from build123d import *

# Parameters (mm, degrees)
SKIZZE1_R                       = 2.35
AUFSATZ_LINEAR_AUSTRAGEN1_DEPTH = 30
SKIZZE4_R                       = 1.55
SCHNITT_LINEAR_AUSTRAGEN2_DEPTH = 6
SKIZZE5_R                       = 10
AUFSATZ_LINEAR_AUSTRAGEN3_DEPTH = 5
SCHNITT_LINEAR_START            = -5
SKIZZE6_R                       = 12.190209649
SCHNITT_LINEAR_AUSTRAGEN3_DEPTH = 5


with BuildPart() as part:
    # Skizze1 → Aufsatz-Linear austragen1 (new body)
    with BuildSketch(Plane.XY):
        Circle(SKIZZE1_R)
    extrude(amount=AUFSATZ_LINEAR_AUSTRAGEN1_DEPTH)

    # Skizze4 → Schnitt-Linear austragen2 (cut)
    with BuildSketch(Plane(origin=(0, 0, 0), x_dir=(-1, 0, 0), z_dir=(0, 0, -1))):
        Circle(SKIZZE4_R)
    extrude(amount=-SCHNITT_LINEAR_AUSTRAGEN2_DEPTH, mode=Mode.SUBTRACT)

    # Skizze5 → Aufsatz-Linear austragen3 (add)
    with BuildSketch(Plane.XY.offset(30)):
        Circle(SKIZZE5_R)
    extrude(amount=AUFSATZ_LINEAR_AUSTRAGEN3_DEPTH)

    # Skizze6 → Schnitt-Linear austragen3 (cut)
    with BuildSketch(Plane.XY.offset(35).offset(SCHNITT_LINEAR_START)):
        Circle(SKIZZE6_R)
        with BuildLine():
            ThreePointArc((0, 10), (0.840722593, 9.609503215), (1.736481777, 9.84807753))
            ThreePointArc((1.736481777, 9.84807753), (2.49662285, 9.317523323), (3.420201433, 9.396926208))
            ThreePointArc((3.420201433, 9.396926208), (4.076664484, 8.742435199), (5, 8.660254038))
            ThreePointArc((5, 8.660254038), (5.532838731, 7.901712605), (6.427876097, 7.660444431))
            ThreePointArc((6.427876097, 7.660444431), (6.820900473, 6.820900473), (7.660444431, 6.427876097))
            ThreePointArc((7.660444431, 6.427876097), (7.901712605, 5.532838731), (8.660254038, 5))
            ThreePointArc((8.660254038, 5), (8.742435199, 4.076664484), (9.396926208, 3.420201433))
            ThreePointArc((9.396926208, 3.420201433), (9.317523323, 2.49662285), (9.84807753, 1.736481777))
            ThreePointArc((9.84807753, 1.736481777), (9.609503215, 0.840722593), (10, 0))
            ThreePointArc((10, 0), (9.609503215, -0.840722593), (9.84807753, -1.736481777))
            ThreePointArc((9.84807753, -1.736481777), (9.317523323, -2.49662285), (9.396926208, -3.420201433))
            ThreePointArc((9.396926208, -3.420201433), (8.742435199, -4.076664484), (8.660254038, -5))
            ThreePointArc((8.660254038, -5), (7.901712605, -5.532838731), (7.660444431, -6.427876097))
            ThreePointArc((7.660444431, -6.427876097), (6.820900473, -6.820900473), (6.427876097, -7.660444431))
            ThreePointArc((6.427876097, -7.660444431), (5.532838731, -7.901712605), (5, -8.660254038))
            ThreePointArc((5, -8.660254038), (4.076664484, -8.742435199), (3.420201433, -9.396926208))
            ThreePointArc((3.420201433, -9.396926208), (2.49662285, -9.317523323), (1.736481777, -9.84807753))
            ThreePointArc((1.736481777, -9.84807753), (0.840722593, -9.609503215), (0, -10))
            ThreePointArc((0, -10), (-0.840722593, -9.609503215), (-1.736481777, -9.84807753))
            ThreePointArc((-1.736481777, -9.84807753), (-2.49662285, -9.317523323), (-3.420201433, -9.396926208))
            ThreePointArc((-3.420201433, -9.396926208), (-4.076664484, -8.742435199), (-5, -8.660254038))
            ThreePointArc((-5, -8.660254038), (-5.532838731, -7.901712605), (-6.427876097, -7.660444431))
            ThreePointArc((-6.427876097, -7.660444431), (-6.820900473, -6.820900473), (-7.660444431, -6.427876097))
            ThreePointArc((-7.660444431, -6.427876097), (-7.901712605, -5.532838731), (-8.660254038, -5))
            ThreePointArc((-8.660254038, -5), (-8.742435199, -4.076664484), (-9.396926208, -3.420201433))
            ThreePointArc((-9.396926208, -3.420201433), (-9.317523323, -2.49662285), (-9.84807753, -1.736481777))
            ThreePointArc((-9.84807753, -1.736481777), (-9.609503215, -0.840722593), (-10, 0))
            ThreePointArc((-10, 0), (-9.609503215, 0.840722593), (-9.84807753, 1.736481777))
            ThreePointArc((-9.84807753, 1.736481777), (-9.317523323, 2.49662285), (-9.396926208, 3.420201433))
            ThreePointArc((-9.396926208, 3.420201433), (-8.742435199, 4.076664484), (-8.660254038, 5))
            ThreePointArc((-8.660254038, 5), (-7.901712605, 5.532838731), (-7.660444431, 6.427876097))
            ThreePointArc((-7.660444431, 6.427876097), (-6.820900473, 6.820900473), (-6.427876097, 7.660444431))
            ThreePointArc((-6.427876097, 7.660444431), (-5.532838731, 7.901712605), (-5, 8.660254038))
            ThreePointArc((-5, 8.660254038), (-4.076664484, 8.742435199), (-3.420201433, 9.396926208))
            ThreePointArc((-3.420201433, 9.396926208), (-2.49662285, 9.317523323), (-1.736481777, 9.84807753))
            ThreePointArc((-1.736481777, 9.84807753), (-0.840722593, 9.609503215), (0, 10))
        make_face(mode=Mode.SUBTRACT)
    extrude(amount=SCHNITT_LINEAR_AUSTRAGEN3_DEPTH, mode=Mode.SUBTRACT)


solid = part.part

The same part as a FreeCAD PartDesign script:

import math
import FreeCAD as App
import Part
import Sketcher

V = App.Vector

doc = App.newDocument("Part")
body = doc.addObject("PartDesign::Body", "Body")

# Sketch on XY plane
sketch1 = body.newObject("Sketcher::SketchObject", "Sketch")
sketch1.AttachmentSupport = (doc.getObject("XY_Plane"), [""])
sketch1.MapMode = "FlatFace"
sketch1.addGeometry(Part.Circle(V(0, 0, 0), V(0, 0, 1), 2.4), False)
sketch1.addConstraint(Sketcher.Constraint("Coincident", 0, 3, -1, 1))
sketch1.addConstraint(Sketcher.Constraint("Diameter", 0, 4.7))
pad1 = body.newObject("PartDesign::Pad", "Pad")
pad1.Profile = sketch1
pad1.Length = 30

# Sketch on XY plane
sketch2 = body.newObject("Sketcher::SketchObject", "Sketch001")
sketch2.AttachmentSupport = (doc.getObject("XY_Plane"), [""])
sketch2.MapMode = "FlatFace"
sketch2.addGeometry(Part.Circle(V(0, 0, 0), V(0, 0, 1), 1.6), False)
sketch2.addConstraint(Sketcher.Constraint("Coincident", 0, 3, -1, 1))
sketch2.addConstraint(Sketcher.Constraint("Diameter", 0, 3.1))
pocket1 = body.newObject("PartDesign::Pocket", "Pocket")
pocket1.Profile = sketch2
pocket1.Length = 6
pocket1.Reversed = True

# Sketch on XY plane
sketch3 = body.newObject("Sketcher::SketchObject", "Sketch002")
sketch3.AttachmentSupport = (doc.getObject("XY_Plane"), [""])
sketch3.MapMode = "FlatFace"
sketch3.AttachmentOffset = App.Placement(V(0, 0, 30), App.Rotation())
sketch3.addGeometry(Part.Circle(V(0, 0, 0), V(0, 0, 1), 10), False)
sketch3.addConstraint(Sketcher.Constraint("Coincident", 0, 3, -1, 1))
sketch3.addConstraint(Sketcher.Constraint("Diameter", 0, 20.0))
pad2 = body.newObject("PartDesign::Pad", "Pad001")
pad2.Profile = sketch3
pad2.Length = 5

# Sketch on XY plane
sketch4 = body.newObject("Sketcher::SketchObject", "Sketch003")
sketch4.AttachmentSupport = (doc.getObject("XY_Plane"), [""])
sketch4.MapMode = "FlatFace"
sketch4.AttachmentOffset = App.Placement(V(0, 0, 30), App.Rotation())
sketch4.addGeometry(Part.Circle(V(0, 0, 0), V(0, 0, 1), 12.2), False)
sketch4.addGeometry(Part.ArcOfCircle(Part.Circle(V(-1, 11, 0), V(0, 0, 1), 1.4), math.radians(-125), math.radians(-45)), False)
sketch4.addGeometry(Part.ArcOfCircle(Part.Circle(V(1, 11, 0), V(0, 0, 1), 1.4), math.radians(-135), math.radians(-55)), False)
sketch4.addGeometry(Part.ArcOfCircle(Part.Circle(V(2.8, 10.6, 0), V(0, 0, 1), 1.4), math.radians(-145), math.radians(-65)), False)
sketch4.addGeometry(Part.ArcOfCircle(Part.Circle(V(4.7, 10, 0), V(0, 0, 1), 1.4), math.radians(-155), math.radians(-75)), False)
sketch4.addGeometry(Part.ArcOfCircle(Part.Circle(V(6.3, 9, 0), V(0, 0, 1), 1.4), math.radians(-165), math.radians(-85)), False)
sketch4.addGeometry(Part.ArcOfCircle(Part.Circle(V(7.8, 7.8, 0), V(0, 0, 1), 1.4), math.radians(-175), math.radians(-95)), False)
sketch4.addGeometry(Part.ArcOfCircle(Part.Circle(V(9, 6.3, 0), V(0, 0, 1), 1.4), math.radians(175), math.radians(255)), False)
sketch4.addGeometry(Part.ArcOfCircle(Part.Circle(V(10, 4.7, 0), V(0, 0, 1), 1.4), math.radians(165), math.radians(245)), False)
sketch4.addGeometry(Part.ArcOfCircle(Part.Circle(V(10.6, 2.8, 0), V(0, 0, 1), 1.4), math.radians(155), math.radians(235)), False)
sketch4.addGeometry(Part.ArcOfCircle(Part.Circle(V(11, 1, 0), V(0, 0, 1), 1.4), math.radians(145), math.radians(225)), False)
sketch4.addGeometry(Part.ArcOfCircle(Part.Circle(V(11, -1, 0), V(0, 0, 1), 1.4), math.radians(135), math.radians(215)), False)
sketch4.addGeometry(Part.ArcOfCircle(Part.Circle(V(10.6, -2.8, 0), V(0, 0, 1), 1.4), math.radians(125), math.radians(205)), False)
sketch4.addGeometry(Part.ArcOfCircle(Part.Circle(V(10, -4.7, 0), V(0, 0, 1), 1.4), math.radians(115), math.radians(195)), False)
sketch4.addGeometry(Part.ArcOfCircle(Part.Circle(V(9, -6.3, 0), V(0, 0, 1), 1.4), math.radians(105), math.radians(185)), False)
sketch4.addGeometry(Part.ArcOfCircle(Part.Circle(V(7.8, -7.8, 0), V(0, 0, 1), 1.4), math.radians(95), math.radians(175)), False)
sketch4.addGeometry(Part.ArcOfCircle(Part.Circle(V(6.3, -9, 0), V(0, 0, 1), 1.4), math.radians(85), math.radians(165)), False)
sketch4.addGeometry(Part.ArcOfCircle(Part.Circle(V(4.7, -10, 0), V(0, 0, 1), 1.4), math.radians(75), math.radians(155)), False)
sketch4.addGeometry(Part.ArcOfCircle(Part.Circle(V(2.8, -10.6, 0), V(0, 0, 1), 1.4), math.radians(65), math.radians(145)), False)
sketch4.addGeometry(Part.ArcOfCircle(Part.Circle(V(1, -11, 0), V(0, 0, 1), 1.4), math.radians(55), math.radians(135)), False)
sketch4.addGeometry(Part.ArcOfCircle(Part.Circle(V(-1, -11, 0), V(0, 0, 1), 1.4), math.radians(45), math.radians(125)), False)
sketch4.addGeometry(Part.ArcOfCircle(Part.Circle(V(-2.8, -10.6, 0), V(0, 0, 1), 1.4), math.radians(35), math.radians(115)), False)
sketch4.addGeometry(Part.ArcOfCircle(Part.Circle(V(-4.7, -10, 0), V(0, 0, 1), 1.4), math.radians(25), math.radians(105)), False)
sketch4.addGeometry(Part.ArcOfCircle(Part.Circle(V(-6.3, -9, 0), V(0, 0, 1), 1.4), math.radians(15), math.radians(95)), False)
sketch4.addGeometry(Part.ArcOfCircle(Part.Circle(V(-7.8, -7.8, 0), V(0, 0, 1), 1.4), math.radians(5), math.radians(85)), False)
sketch4.addGeometry(Part.ArcOfCircle(Part.Circle(V(-9, -6.3, 0), V(0, 0, 1), 1.4), math.radians(-5), math.radians(75)), False)
sketch4.addGeometry(Part.ArcOfCircle(Part.Circle(V(-10, -4.7, 0), V(0, 0, 1), 1.4), math.radians(-15), math.radians(65)), False)
sketch4.addGeometry(Part.ArcOfCircle(Part.Circle(V(-10.6, -2.8, 0), V(0, 0, 1), 1.4), math.radians(-25), math.radians(55)), False)
sketch4.addGeometry(Part.ArcOfCircle(Part.Circle(V(-11, -1, 0), V(0, 0, 1), 1.4), math.radians(-35), math.radians(45)), False)
sketch4.addGeometry(Part.ArcOfCircle(Part.Circle(V(-11, 1, 0), V(0, 0, 1), 1.4), math.radians(-45), math.radians(35)), False)
sketch4.addGeometry(Part.ArcOfCircle(Part.Circle(V(-10.6, 2.8, 0), V(0, 0, 1), 1.4), math.radians(-55), math.radians(25)), False)
sketch4.addGeometry(Part.ArcOfCircle(Part.Circle(V(-10, 4.7, 0), V(0, 0, 1), 1.4), math.radians(-65), math.radians(15)), False)
sketch4.addGeometry(Part.ArcOfCircle(Part.Circle(V(-9, 6.3, 0), V(0, 0, 1), 1.4), math.radians(-75), math.radians(5)), False)
sketch4.addGeometry(Part.ArcOfCircle(Part.Circle(V(-7.8, 7.8, 0), V(0, 0, 1), 1.4), math.radians(-85), math.radians(-5)), False)
sketch4.addGeometry(Part.ArcOfCircle(Part.Circle(V(-6.3, 9, 0), V(0, 0, 1), 1.4), math.radians(-95), math.radians(-15)), False)
sketch4.addGeometry(Part.ArcOfCircle(Part.Circle(V(-4.7, 10, 0), V(0, 0, 1), 1.4), math.radians(-105), math.radians(-25)), False)
sketch4.addGeometry(Part.ArcOfCircle(Part.Circle(V(-2.8, 10.6, 0), V(0, 0, 1), 1.4), math.radians(-115), math.radians(-35)), False)
sketch4.addConstraint(Sketcher.Constraint("Coincident", 1, 2, 2, 1))
sketch4.addConstraint(Sketcher.Constraint("Coincident", 2, 2, 3, 1))
sketch4.addConstraint(Sketcher.Constraint("Coincident", 3, 2, 4, 1))
sketch4.addConstraint(Sketcher.Constraint("Coincident", 4, 2, 5, 1))
sketch4.addConstraint(Sketcher.Constraint("Coincident", 5, 2, 6, 1))
sketch4.addConstraint(Sketcher.Constraint("Coincident", 6, 2, 7, 1))
sketch4.addConstraint(Sketcher.Constraint("Coincident", 7, 2, 8, 1))
sketch4.addConstraint(Sketcher.Constraint("Coincident", 8, 2, 9, 1))
sketch4.addConstraint(Sketcher.Constraint("Coincident", 9, 2, 10, 1))
sketch4.addConstraint(Sketcher.Constraint("Coincident", 10, 2, 11, 1))
sketch4.addConstraint(Sketcher.Constraint("Coincident", 11, 2, 12, 1))
sketch4.addConstraint(Sketcher.Constraint("Coincident", 12, 2, 13, 1))
sketch4.addConstraint(Sketcher.Constraint("Coincident", 13, 2, 14, 1))
sketch4.addConstraint(Sketcher.Constraint("Coincident", 14, 2, 15, 1))
sketch4.addConstraint(Sketcher.Constraint("Coincident", 15, 2, 16, 1))
sketch4.addConstraint(Sketcher.Constraint("Coincident", 16, 2, 17, 1))
sketch4.addConstraint(Sketcher.Constraint("Coincident", 17, 2, 18, 1))
sketch4.addConstraint(Sketcher.Constraint("Coincident", 18, 2, 19, 1))
sketch4.addConstraint(Sketcher.Constraint("Coincident", 19, 2, 20, 1))
sketch4.addConstraint(Sketcher.Constraint("Coincident", 20, 2, 21, 1))
sketch4.addConstraint(Sketcher.Constraint("Coincident", 21, 2, 22, 1))
sketch4.addConstraint(Sketcher.Constraint("Coincident", 22, 2, 23, 1))
sketch4.addConstraint(Sketcher.Constraint("Coincident", 23, 2, 24, 1))
sketch4.addConstraint(Sketcher.Constraint("Coincident", 24, 2, 25, 1))
sketch4.addConstraint(Sketcher.Constraint("Coincident", 25, 2, 26, 1))
sketch4.addConstraint(Sketcher.Constraint("Coincident", 26, 2, 27, 1))
sketch4.addConstraint(Sketcher.Constraint("Coincident", 27, 2, 28, 1))
sketch4.addConstraint(Sketcher.Constraint("Coincident", 28, 2, 29, 1))
sketch4.addConstraint(Sketcher.Constraint("Coincident", 29, 2, 30, 1))
sketch4.addConstraint(Sketcher.Constraint("Coincident", 30, 2, 31, 1))
sketch4.addConstraint(Sketcher.Constraint("Coincident", 31, 2, 32, 1))
sketch4.addConstraint(Sketcher.Constraint("Coincident", 32, 2, 33, 1))
sketch4.addConstraint(Sketcher.Constraint("Coincident", 33, 2, 34, 1))
sketch4.addConstraint(Sketcher.Constraint("Coincident", 34, 2, 35, 1))
sketch4.addConstraint(Sketcher.Constraint("Coincident", 35, 2, 36, 1))
sketch4.addConstraint(Sketcher.Constraint("Coincident", 36, 2, 1, 1))
sketch4.addConstraint(Sketcher.Constraint("Coincident", 0, 3, -1, 1))
sketch4.addConstraint(Sketcher.Constraint("Equal", 1, 2))
sketch4.addConstraint(Sketcher.Constraint("Equal", 2, 3))
sketch4.addConstraint(Sketcher.Constraint("Equal", 3, 4))
sketch4.addConstraint(Sketcher.Constraint("Equal", 4, 5))
sketch4.addConstraint(Sketcher.Constraint("Equal", 5, 6))
sketch4.addConstraint(Sketcher.Constraint("Equal", 6, 7))
sketch4.addConstraint(Sketcher.Constraint("Equal", 7, 8))
sketch4.addConstraint(Sketcher.Constraint("Equal", 8, 9))
sketch4.addConstraint(Sketcher.Constraint("Equal", 9, 10))
sketch4.addConstraint(Sketcher.Constraint("Equal", 10, 11))
sketch4.addConstraint(Sketcher.Constraint("Equal", 11, 12))
sketch4.addConstraint(Sketcher.Constraint("Equal", 12, 13))
sketch4.addConstraint(Sketcher.Constraint("Equal", 13, 14))
sketch4.addConstraint(Sketcher.Constraint("Equal", 14, 15))
sketch4.addConstraint(Sketcher.Constraint("Equal", 15, 16))
sketch4.addConstraint(Sketcher.Constraint("Equal", 16, 17))
sketch4.addConstraint(Sketcher.Constraint("Equal", 17, 18))
sketch4.addConstraint(Sketcher.Constraint("Equal", 18, 19))
sketch4.addConstraint(Sketcher.Constraint("Equal", 19, 20))
sketch4.addConstraint(Sketcher.Constraint("Equal", 20, 21))
sketch4.addConstraint(Sketcher.Constraint("Equal", 21, 22))
sketch4.addConstraint(Sketcher.Constraint("Equal", 22, 23))
sketch4.addConstraint(Sketcher.Constraint("Equal", 23, 24))
sketch4.addConstraint(Sketcher.Constraint("Equal", 24, 25))
sketch4.addConstraint(Sketcher.Constraint("Equal", 25, 26))
sketch4.addConstraint(Sketcher.Constraint("Equal", 26, 27))
sketch4.addConstraint(Sketcher.Constraint("Equal", 27, 28))
sketch4.addConstraint(Sketcher.Constraint("Equal", 28, 29))
sketch4.addConstraint(Sketcher.Constraint("Equal", 29, 30))
sketch4.addConstraint(Sketcher.Constraint("Equal", 30, 31))
sketch4.addConstraint(Sketcher.Constraint("Equal", 31, 32))
sketch4.addConstraint(Sketcher.Constraint("Equal", 32, 33))
sketch4.addConstraint(Sketcher.Constraint("Equal", 33, 34))
sketch4.addConstraint(Sketcher.Constraint("Equal", 34, 35))
sketch4.addConstraint(Sketcher.Constraint("Equal", 35, 36))
sketch4.addConstraint(Sketcher.Constraint("Symmetric", 1, 3, 19, 3, -1, 1))
sketch4.addConstraint(Sketcher.Constraint("Symmetric", 2, 3, 20, 3, -1, 1))
sketch4.addConstraint(Sketcher.Constraint("Symmetric", 3, 3, 21, 3, -1, 1))
sketch4.addConstraint(Sketcher.Constraint("Symmetric", 4, 3, 22, 3, -1, 1))
sketch4.addConstraint(Sketcher.Constraint("Symmetric", 5, 3, 23, 3, -1, 1))
sketch4.addConstraint(Sketcher.Constraint("Symmetric", 6, 3, 24, 3, -1, 1))
sketch4.addConstraint(Sketcher.Constraint("Symmetric", 7, 3, 25, 3, -1, 1))
sketch4.addConstraint(Sketcher.Constraint("Symmetric", 8, 3, 26, 3, -1, 1))
sketch4.addConstraint(Sketcher.Constraint("Symmetric", 9, 3, 27, 3, -1, 1))
sketch4.addConstraint(Sketcher.Constraint("Symmetric", 10, 3, 28, 3, -1, 1))
sketch4.addConstraint(Sketcher.Constraint("Symmetric", 11, 3, 29, 3, -1, 1))
sketch4.addConstraint(Sketcher.Constraint("Symmetric", 12, 3, 30, 3, -1, 1))
sketch4.addConstraint(Sketcher.Constraint("Symmetric", 13, 3, 31, 3, -1, 1))
sketch4.addConstraint(Sketcher.Constraint("Symmetric", 14, 3, 32, 3, -1, 1))
sketch4.addConstraint(Sketcher.Constraint("Symmetric", 15, 3, 33, 3, -1, 1))
sketch4.addConstraint(Sketcher.Constraint("Symmetric", 16, 3, 34, 3, -1, 1))
sketch4.addConstraint(Sketcher.Constraint("Symmetric", 17, 3, 35, 3, -1, 1))
sketch4.addConstraint(Sketcher.Constraint("Symmetric", 18, 3, 36, 3, -1, 1))
sketch4.addConstraint(Sketcher.Constraint("Symmetric", 1, 3, 2, 3, -2))
sketch4.addConstraint(Sketcher.Constraint("Symmetric", 18, 3, 21, 3, -2))
sketch4.addConstraint(Sketcher.Constraint("Symmetric", 17, 3, 22, 3, -2))
sketch4.addConstraint(Sketcher.Constraint("Symmetric", 16, 3, 23, 3, -2))
sketch4.addConstraint(Sketcher.Constraint("Symmetric", 15, 3, 24, 3, -2))
sketch4.addConstraint(Sketcher.Constraint("Symmetric", 14, 3, 25, 3, -2))
sketch4.addConstraint(Sketcher.Constraint("Symmetric", 13, 3, 26, 3, -2))
sketch4.addConstraint(Sketcher.Constraint("Symmetric", 12, 3, 27, 3, -2))
sketch4.addConstraint(Sketcher.Constraint("Symmetric", 11, 3, 28, 3, -2))
sketch4.addConstraint(Sketcher.Constraint("DistanceY", -1, 1, 1, 2, 10.0))
sketch4.addConstraint(Sketcher.Constraint("DistanceX", -1, 1, 4, 2, 5.0))
sketch4.addConstraint(Sketcher.Constraint("DistanceY", -1, 1, 7, 2, 5.0))
sketch4.addConstraint(Sketcher.Constraint("DistanceX", -1, 1, 10, 2, 10.0))
sketch4.addConstraint(Sketcher.Constraint("Diameter", 0, 24.380419))
sketch4.addConstraint(Sketcher.Constraint("Radius", 1, 1.360788))
sketch4.addConstraint(Sketcher.Constraint("DistanceX", -1, 1, 3, 2, 3.420201))
sketch4.addConstraint(Sketcher.Constraint("DistanceY", -1, 1, 8, 2, 3.420201))
sketch4.addConstraint(Sketcher.Constraint("DistanceX", -1, 1, 3, 3, 2.848821))
sketch4.addConstraint(Sketcher.Constraint("DistanceX", -1, 1, 4, 3, 4.651758))
sketch4.addConstraint(Sketcher.Constraint("DistanceY", -1, 1, 8, 3, 4.651758))
sketch4.addConstraint(Sketcher.Constraint("DistanceY", -1, 1, 9, 3, 2.848821))
sketch4.addConstraint(Sketcher.Constraint("DistanceX", -1, 1, 2, 2, 1.736482))
sketch4.addConstraint(Sketcher.Constraint("DistanceY", -1, 1, 9, 2, 1.736482))
sketch4.addConstraint(Sketcher.Constraint("DistanceX", 1, 3, -1, 1, 0.959323))
sketch4.addConstraint(Sketcher.Constraint("DistanceX", -1, 1, 5, 3, 6.313355))
sketch4.addConstraint(Sketcher.Constraint("DistanceX", -1, 1, 6, 3, 7.783123))
sketch4.addConstraint(Sketcher.Constraint("DistanceY", -1, 1, 6, 3, 7.783123))
sketch4.addConstraint(Sketcher.Constraint("DistanceX", -1, 1, 7, 3, 9.016405))
sketch4.addConstraint(Sketcher.Constraint("DistanceY", -1, 1, 7, 3, 6.313355))
pocket2 = body.newObject("PartDesign::Pocket", "Pocket001")
pocket2.Profile = sketch4
pocket2.Length = 5
pocket2.Reversed = True

doc.recompute()
